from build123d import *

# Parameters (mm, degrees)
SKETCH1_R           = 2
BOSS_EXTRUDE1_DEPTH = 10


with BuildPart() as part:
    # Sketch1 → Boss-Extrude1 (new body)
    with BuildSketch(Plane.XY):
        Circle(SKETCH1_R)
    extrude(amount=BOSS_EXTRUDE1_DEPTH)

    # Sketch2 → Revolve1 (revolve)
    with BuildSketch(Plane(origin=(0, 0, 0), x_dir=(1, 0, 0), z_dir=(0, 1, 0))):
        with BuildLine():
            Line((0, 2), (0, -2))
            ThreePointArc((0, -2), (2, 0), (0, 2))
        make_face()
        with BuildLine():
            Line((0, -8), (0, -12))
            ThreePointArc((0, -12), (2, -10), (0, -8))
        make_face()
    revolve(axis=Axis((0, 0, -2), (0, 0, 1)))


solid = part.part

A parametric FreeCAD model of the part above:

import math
import FreeCAD as App
import Part
import Sketcher

V = App.Vector
Q = App.Units.Quantity

doc = App.newDocument("Part")
body = doc.addObject("PartDesign::Body", "Body")

# Sketch on XY plane
sketch1 = body.newObject("Sketcher::SketchObject", "Sketch")
sketch1.AttachmentSupport = (doc.getObject("XY_Plane"), [""])
sketch1.MapMode = "FlatFace"
sketch1.addGeometry(Part.Circle(V(0, 0, 0), V(0, 0, 1), 2), False)
sketch1.addConstraint([
    Sketcher.Constraint("Coincident", 0, 3, -1, 1),
    Sketcher.Constraint("Diameter", 0, Q("4 mm")),
])
pad1 = body.newObject("PartDesign::Pad", "Pad")
pad1.Profile = sketch1
pad1.Length = 10

# Sketch on XZ plane
sketch2 = body.newObject("Sketcher::SketchObject", "Sketch001")
sketch2.AttachmentSupport = (doc.getObject("XZ_Plane"), [""])
sketch2.MapMode = "FlatFace"
sketch2.addGeometry([
    Part.LineSegment(V(0, -2, 0), V(0, 2, 0)),
    Part.ArcOfCircle(Part.Circle(V(0, 0, 0), V(0, 0, 1), 2), math.radians(-90), math.radians(90)),
    Part.LineSegment(V(0, 8, 0), V(0, 12, 0)),
    Part.ArcOfCircle(Part.Circle(V(0, 10, 0), V(0, 0, 1), 2), math.radians(-90), math.radians(90)),
], False)
sketch2.addConstraint([
    Sketcher.Constraint("Coincident", 0, 1, 1, 1),
    Sketcher.Constraint("Coincident", 1, 2, 0, 2),
    Sketcher.Constraint("Coincident", 2, 1, 3, 1),
    Sketcher.Constraint("Coincident", 3, 2, 2, 2),
    Sketcher.Constraint("Vertical", 0),
    Sketcher.Constraint("Vertical", 2),
    Sketcher.Constraint("Coincident", 1, 3, -1, 1),
    Sketcher.Constraint("Equal", 1, 3),
    Sketcher.Constraint("PointOnObject", 3, 3, -2),
    Sketcher.Constraint("PointOnObject", 0, 1, -2),
    Sketcher.Constraint("PointOnObject", 2, 1, -2),
    Sketcher.Constraint("Radius", 1, Q("2 mm")),
    Sketcher.Constraint("DistanceY", -1, 1, 3, 3, Q("10 mm")),
])
revolution = body.newObject("PartDesign::Revolution", "Revolution")
revolution.Profile = sketch2
revolution.ReferenceAxis = (sketch2, ["V_Axis"])
revolution.Angle = 360

doc.recompute()
